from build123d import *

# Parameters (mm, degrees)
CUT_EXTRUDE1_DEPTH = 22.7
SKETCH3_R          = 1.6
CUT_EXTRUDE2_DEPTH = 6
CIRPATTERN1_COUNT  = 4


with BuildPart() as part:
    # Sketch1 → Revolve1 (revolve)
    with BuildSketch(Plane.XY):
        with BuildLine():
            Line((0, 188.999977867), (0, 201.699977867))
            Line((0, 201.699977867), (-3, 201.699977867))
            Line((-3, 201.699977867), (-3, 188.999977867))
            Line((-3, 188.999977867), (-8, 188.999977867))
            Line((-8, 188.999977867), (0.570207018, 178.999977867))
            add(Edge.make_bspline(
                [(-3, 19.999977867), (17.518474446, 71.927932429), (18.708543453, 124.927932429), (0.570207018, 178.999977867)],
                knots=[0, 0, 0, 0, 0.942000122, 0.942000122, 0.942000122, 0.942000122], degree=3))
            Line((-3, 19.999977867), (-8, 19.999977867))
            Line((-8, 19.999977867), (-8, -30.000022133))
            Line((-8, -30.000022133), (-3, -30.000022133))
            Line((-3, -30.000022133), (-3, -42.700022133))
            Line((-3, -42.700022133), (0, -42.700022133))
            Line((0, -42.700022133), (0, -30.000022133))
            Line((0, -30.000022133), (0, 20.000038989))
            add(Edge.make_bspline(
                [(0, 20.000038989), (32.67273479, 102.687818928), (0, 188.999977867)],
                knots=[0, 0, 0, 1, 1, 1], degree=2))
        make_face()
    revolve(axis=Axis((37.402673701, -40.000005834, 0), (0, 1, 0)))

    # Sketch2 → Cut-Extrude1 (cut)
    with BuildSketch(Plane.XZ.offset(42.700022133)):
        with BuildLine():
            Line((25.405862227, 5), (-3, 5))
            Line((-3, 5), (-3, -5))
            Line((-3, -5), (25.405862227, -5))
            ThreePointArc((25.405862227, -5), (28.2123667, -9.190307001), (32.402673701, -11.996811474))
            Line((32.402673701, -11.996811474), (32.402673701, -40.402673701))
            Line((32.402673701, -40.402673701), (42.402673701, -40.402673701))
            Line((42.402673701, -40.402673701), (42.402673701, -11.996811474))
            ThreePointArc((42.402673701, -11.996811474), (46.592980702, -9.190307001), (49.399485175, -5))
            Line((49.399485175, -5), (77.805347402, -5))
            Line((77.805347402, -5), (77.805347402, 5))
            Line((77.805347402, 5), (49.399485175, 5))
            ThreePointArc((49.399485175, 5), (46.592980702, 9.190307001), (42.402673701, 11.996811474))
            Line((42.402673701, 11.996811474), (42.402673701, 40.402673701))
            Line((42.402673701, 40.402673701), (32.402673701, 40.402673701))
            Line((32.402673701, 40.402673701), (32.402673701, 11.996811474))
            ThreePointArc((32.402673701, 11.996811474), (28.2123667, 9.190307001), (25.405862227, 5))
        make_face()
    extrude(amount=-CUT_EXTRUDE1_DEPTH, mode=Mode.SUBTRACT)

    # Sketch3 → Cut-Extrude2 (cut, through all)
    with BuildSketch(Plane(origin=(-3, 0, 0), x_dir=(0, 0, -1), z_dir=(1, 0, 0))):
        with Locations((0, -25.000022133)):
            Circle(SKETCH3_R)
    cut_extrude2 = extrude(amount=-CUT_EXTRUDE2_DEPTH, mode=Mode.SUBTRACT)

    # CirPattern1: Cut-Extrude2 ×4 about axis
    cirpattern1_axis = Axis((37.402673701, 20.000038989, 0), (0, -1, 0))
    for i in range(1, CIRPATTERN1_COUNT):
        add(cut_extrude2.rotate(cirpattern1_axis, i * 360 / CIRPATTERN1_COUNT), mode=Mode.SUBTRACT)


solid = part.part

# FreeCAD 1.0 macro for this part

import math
import FreeCAD as App
import Part
import Sketcher
from FreeCAD import Vector

doc = App.newDocument("Part")
body = doc.addObject("PartDesign::Body", "Body")

# Sketch on XY plane
sketch1 = body.newObject("Sketcher::SketchObject", "Sketch")
sketch1.AttachmentSupport = (doc.getObject("XY_Plane"), [""])
sketch1.MapMode = "FlatFace"
sketch1.addGeometry([
    Part.LineSegment(Vector(0, 188.999978, 0), Vector(0, 201.699978, 0)),  # 0
    Part.LineSegment(Vector(0, 201.699978, 0), Vector(-3, 201.699978, 0)),  # 1
    Part.LineSegment(Vector(-3, 201.699978, 0), Vector(-3, 188.999978, 0)),  # 2
    Part.LineSegment(Vector(-3, 188.999978, 0), Vector(-8, 188.999978, 0)),  # 3
    Part.LineSegment(Vector(-8, 188.999978, 0), Vector(0.570207, 178.999978, 0)),  # 4
    Part.BSplineCurve([Vector(-3, 19.999978, 0), Vector(17.518474, 71.927932, 0), Vector(18.708543, 124.927932, 0), Vector(0.570207, 178.999978, 0)], [4, 4], [0, 0.942000122], False, 3, [1, 1, 1, 1], False),  # 5
    Part.LineSegment(Vector(-3, 19.999978, 0), Vector(-8, 19.999978, 0)),  # 6
    Part.LineSegment(Vector(-8, 19.999978, 0), Vector(-8, -30.000022, 0)),  # 7
    Part.LineSegment(Vector(-8, -30.000022, 0), Vector(-3, -30.000022, 0)),  # 8
    Part.LineSegment(Vector(-3, -30.000022, 0), Vector(-3, -42.700022, 0)),  # 9
    Part.LineSegment(Vector(-3, -42.700022, 0), Vector(0, -42.700022, 0)),  # 10
    Part.LineSegment(Vector(0, -42.700022, 0), Vector(0, 20.000039, 0)),  # 11
    Part.BSplineCurve([Vector(0, 20.000039, 0), Vector(32.672735, 102.687819, 0), Vector(0, 188.999978, 0)], [3, 3], [0, 1], False, 2, [1, 1, 1], False),  # 12
], False)
sketch1.addGeometry(Part.LineSegment(Vector(37.402674, -42.700022, 0), Vector(37.402674, 201.699978, 0)), True)  # axis
sketch1.addConstraint([
    Sketcher.Constraint("Block", 5),
    Sketcher.Constraint("Block", 12),
    Sketcher.Constraint("Coincident", 0, 2, 1, 1),
    Sketcher.Constraint("Coincident", 1, 2, 2, 1),
    Sketcher.Constraint("Coincident", 2, 2, 3, 1),
    Sketcher.Constraint("Coincident", 3, 2, 4, 1),
    Sketcher.Constraint("Coincident", 4, 2, 5, 2),
    Sketcher.Constraint("Coincident", 5, 1, 6, 1),
    Sketcher.Constraint("Coincident", 6, 2, 7, 1),
    Sketcher.Constraint("Coincident", 7, 2, 8, 1),
    Sketcher.Constraint("Coincident", 8, 2, 9, 1),
    Sketcher.Constraint("Coincident", 9, 2, 10, 1),
    Sketcher.Constraint("Coincident", 10, 2, 11, 1),
    Sketcher.Constraint("Coincident", 11, 2, 12, 1),
    Sketcher.Constraint("Coincident", 12, 2, 0, 1),
    Sketcher.Constraint("Vertical", 0),
    Sketcher.Constraint("Horizontal", 1),
    Sketcher.Constraint("Vertical", 2),
    Sketcher.Constraint("Horizontal", 3),
    Sketcher.Constraint("Horizontal", 6),
    Sketcher.Constraint("Vertical", 7),
    Sketcher.Constraint("Horizontal", 8),
    Sketcher.Constraint("Vertical", 9),
    Sketcher.Constraint("Horizontal", 10),
    Sketcher.Constraint("Vertical", 11),
    Sketcher.Constraint("Vertical", 13),
    Sketcher.Constraint("Horizontal", 10, 2, 13, 1),
    Sketcher.Constraint("Horizontal", 1, 2, 13, 2),
    Sketcher.Constraint("Vertical", 3, 2, 6, 2),
    Sketcher.Constraint("Vertical", 2, 2, 8, 2),
    Sketcher.Constraint("Equal", 3, 6),
    Sketcher.Constraint("Equal", 0, 2),
    Sketcher.Constraint("Equal", 2, 9),
    Sketcher.Constraint("DistanceX", 3, 2, 3, 1, 5.0),
    Sketcher.Constraint("DistanceY", 7, 2, 7, 1, 50.0),
    Sketcher.Constraint("DistanceY", 0, 1, 0, 2, 12.7),
    Sketcher.Constraint("DistanceX", -1, 1, 13, 1, 37.402674),
])
revolution = body.newObject("PartDesign::Revolution", "Revolution")
revolution.Profile = sketch1
revolution.ReferenceAxis = (sketch1, ["Axis0"])
revolution.Angle = 360

# Sketch on XZ plane
sketch2 = body.newObject("Sketcher::SketchObject", "Sketch001")
sketch2.AttachmentSupport = (doc.getObject("XZ_Plane"), [""])
sketch2.MapMode = "FlatFace"
sketch2.AttachmentOffset = App.Placement(Vector(0, 0, 42.700022), App.Rotation())
sketch2.addGeometry([
    Part.LineSegment(Vector(25, 5, 0), Vector(-3, 5, 0)),  # 0
    Part.LineSegment(Vector(-3, 5, 0), Vector(-3, -5, 0)),  # 1
    Part.LineSegment(Vector(-3, -5, 0), Vector(25, -5, 0)),  # 2
    Part.ArcOfCircle(Part.Circle(Vector(37, 0, 0), Vector(0, 0, 1), 13), math.radians(-157), math.radians(-113)),  # 3
    Part.LineSegment(Vector(32, -12, 0), Vector(32, -40, 0)),  # 4
    Part.LineSegment(Vector(32, -40, 0), Vector(42, -40, 0)),  # 5
    Part.LineSegment(Vector(42, -40, 0), Vector(42, -12, 0)),  # 6
    Part.ArcOfCircle(Part.Circle(Vector(37, 0, 0), Vector(0, 0, 1), 13), math.radians(-67), math.radians(-23)),  # 7
    Part.LineSegment(Vector(49, -5, 0), Vector(78, -5, 0)),  # 8
    Part.LineSegment(Vector(78, -5, 0), Vector(78, 5, 0)),  # 9
    Part.LineSegment(Vector(78, 5, 0), Vector(49, 5, 0)),  # 10
    Part.ArcOfCircle(Part.Circle(Vector(37, 0, 0), Vector(0, 0, 1), 13), math.radians(23), math.radians(67)),  # 11
    Part.LineSegment(Vector(42, 12, 0), Vector(42, 40, 0)),  # 12
    Part.LineSegment(Vector(42, 40, 0), Vector(32, 40, 0)),  # 13
    Part.LineSegment(Vector(32, 40, 0), Vector(32, 12, 0)),  # 14
    Part.ArcOfCircle(Part.Circle(Vector(37, 0, 0), Vector(0, 0, 1), 13), math.radians(113), math.radians(157)),  # 15
], False)
sketch2.addConstraint([
    Sketcher.Constraint("Coincident", 0, 2, 1, 1),
    Sketcher.Constraint("Coincident", 1, 2, 2, 1),
    Sketcher.Constraint("Coincident", 2, 2, 3, 1),
    Sketcher.Constraint("Coincident", 3, 2, 4, 1),
    Sketcher.Constraint("Coincident", 4, 2, 5, 1),
    Sketcher.Constraint("Coincident", 5, 2, 6, 1),
    Sketcher.Constraint("Coincident", 6, 2, 7, 1),
    Sketcher.Constraint("Coincident", 7, 2, 8, 1),
    Sketcher.Constraint("Coincident", 8, 2, 9, 1),
    Sketcher.Constraint("Coincident", 9, 2, 10, 1),
    Sketcher.Constraint("Coincident", 10, 2, 11, 1),
    Sketcher.Constraint("Coincident", 11, 2, 12, 1),
    Sketcher.Constraint("Coincident", 12, 2, 13, 1),
    Sketcher.Constraint("Coincident", 13, 2, 14, 1),
    Sketcher.Constraint("Coincident", 14, 2, 15, 1),
    Sketcher.Constraint("Coincident", 15, 2, 0, 1),
    Sketcher.Constraint("Horizontal", 0),
    Sketcher.Constraint("Vertical", 1),
    Sketcher.Constraint("Horizontal", 2),
    Sketcher.Constraint("Vertical", 4),
    Sketcher.Constraint("Horizontal", 5),
    Sketcher.Constraint("Vertical", 6),
    Sketcher.Constraint("Horizontal", 8),
    Sketcher.Constraint("Vertical", 9),
    Sketcher.Constraint("Horizontal", 10),
    Sketcher.Constraint("Vertical", 12),
    Sketcher.Constraint("Horizontal", 13),
    Sketcher.Constraint("Vertical", 14),
    Sketcher.Constraint("Coincident", 7, 3, 3, 3),
    Sketcher.Constraint("Coincident", 11, 3, 3, 3),
    Sketcher.Constraint("Coincident", 15, 3, 3, 3),
    Sketcher.Constraint("Equal", 3, 7),
    Sketcher.Constraint("Equal", 7, 11),
    Sketcher.Constraint("Equal", 11, 15),
    Sketcher.Constraint("Symmetric", 7, 2, 10, 2, -1),
    Sketcher.Constraint("Symmetric", 5, 2, 12, 2, -1),
    Sketcher.Constraint("Horizontal", 3, 2, 6, 2),
    Sketcher.Constraint("Horizontal", 2, 2, 7, 2),
    Sketcher.Constraint("Horizontal", 0, 2, 9, 2),
    Sketcher.Constraint("Horizontal", 11, 2, 14, 2),
    Sketcher.Constraint("Equal", 2, 8),
    Sketcher.Constraint("Equal", 13, 1),
    Sketcher.Constraint("Equal", 10, 4),
    Sketcher.Constraint("DistanceX", 5, 1, 5, 2, 10.0),
    Sketcher.Constraint("DistanceX", 0, 2, -1, 1, 3.0),
    Sketcher.Constraint("Radius", 3, 12.997057),
    Sketcher.Constraint("DistanceX", 0, 2, 0, 1, 28.405862),
])
pocket1 = body.newObject("PartDesign::Pocket", "Pocket")
pocket1.Profile = sketch2
pocket1.Length = 22.7

# Sketch on YZ plane
sketch3 = body.newObject("Sketcher::SketchObject", "Sketch002")
sketch3.AttachmentSupport = (doc.getObject("YZ_Plane"), [""])
sketch3.MapMode = "FlatFace"
sketch3.AttachmentOffset = App.Placement(Vector(0, 0, -3), App.Rotation())
sketch3.addGeometry(Part.Circle(Vector(-25.000022, 0, 0), Vector(0, 0, 1), 1.6), False)
sketch3.addConstraint([
    Sketcher.Constraint("PointOnObject", 0, 3, -1),
    Sketcher.Constraint("Diameter", 0, 3.2),
    Sketcher.Constraint("DistanceX", 0, 3, -1, 1, 25.000022),
])
pocket2 = body.newObject("PartDesign::Pocket", "Pocket001")
pocket2.Profile = sketch3
pocket2.Type = "ThroughAll"
doc.recompute()

datumline = body.newObject("PartDesign::Line", "DatumLine")
datumline.Placement = App.Placement(Vector(37.402674, 0, 0), App.Rotation(Vector(0, 0, 1), Vector(0, -1, 0)))
polarpattern = body.newObject("PartDesign::PolarPattern", "PolarPattern")
polarpattern.Originals = [pocket2]
polarpattern.Axis = (datumline, [""])
polarpattern.Angle = 360
polarpattern.Occurrences = 4
body.Tip = polarpattern

doc.recompute()
